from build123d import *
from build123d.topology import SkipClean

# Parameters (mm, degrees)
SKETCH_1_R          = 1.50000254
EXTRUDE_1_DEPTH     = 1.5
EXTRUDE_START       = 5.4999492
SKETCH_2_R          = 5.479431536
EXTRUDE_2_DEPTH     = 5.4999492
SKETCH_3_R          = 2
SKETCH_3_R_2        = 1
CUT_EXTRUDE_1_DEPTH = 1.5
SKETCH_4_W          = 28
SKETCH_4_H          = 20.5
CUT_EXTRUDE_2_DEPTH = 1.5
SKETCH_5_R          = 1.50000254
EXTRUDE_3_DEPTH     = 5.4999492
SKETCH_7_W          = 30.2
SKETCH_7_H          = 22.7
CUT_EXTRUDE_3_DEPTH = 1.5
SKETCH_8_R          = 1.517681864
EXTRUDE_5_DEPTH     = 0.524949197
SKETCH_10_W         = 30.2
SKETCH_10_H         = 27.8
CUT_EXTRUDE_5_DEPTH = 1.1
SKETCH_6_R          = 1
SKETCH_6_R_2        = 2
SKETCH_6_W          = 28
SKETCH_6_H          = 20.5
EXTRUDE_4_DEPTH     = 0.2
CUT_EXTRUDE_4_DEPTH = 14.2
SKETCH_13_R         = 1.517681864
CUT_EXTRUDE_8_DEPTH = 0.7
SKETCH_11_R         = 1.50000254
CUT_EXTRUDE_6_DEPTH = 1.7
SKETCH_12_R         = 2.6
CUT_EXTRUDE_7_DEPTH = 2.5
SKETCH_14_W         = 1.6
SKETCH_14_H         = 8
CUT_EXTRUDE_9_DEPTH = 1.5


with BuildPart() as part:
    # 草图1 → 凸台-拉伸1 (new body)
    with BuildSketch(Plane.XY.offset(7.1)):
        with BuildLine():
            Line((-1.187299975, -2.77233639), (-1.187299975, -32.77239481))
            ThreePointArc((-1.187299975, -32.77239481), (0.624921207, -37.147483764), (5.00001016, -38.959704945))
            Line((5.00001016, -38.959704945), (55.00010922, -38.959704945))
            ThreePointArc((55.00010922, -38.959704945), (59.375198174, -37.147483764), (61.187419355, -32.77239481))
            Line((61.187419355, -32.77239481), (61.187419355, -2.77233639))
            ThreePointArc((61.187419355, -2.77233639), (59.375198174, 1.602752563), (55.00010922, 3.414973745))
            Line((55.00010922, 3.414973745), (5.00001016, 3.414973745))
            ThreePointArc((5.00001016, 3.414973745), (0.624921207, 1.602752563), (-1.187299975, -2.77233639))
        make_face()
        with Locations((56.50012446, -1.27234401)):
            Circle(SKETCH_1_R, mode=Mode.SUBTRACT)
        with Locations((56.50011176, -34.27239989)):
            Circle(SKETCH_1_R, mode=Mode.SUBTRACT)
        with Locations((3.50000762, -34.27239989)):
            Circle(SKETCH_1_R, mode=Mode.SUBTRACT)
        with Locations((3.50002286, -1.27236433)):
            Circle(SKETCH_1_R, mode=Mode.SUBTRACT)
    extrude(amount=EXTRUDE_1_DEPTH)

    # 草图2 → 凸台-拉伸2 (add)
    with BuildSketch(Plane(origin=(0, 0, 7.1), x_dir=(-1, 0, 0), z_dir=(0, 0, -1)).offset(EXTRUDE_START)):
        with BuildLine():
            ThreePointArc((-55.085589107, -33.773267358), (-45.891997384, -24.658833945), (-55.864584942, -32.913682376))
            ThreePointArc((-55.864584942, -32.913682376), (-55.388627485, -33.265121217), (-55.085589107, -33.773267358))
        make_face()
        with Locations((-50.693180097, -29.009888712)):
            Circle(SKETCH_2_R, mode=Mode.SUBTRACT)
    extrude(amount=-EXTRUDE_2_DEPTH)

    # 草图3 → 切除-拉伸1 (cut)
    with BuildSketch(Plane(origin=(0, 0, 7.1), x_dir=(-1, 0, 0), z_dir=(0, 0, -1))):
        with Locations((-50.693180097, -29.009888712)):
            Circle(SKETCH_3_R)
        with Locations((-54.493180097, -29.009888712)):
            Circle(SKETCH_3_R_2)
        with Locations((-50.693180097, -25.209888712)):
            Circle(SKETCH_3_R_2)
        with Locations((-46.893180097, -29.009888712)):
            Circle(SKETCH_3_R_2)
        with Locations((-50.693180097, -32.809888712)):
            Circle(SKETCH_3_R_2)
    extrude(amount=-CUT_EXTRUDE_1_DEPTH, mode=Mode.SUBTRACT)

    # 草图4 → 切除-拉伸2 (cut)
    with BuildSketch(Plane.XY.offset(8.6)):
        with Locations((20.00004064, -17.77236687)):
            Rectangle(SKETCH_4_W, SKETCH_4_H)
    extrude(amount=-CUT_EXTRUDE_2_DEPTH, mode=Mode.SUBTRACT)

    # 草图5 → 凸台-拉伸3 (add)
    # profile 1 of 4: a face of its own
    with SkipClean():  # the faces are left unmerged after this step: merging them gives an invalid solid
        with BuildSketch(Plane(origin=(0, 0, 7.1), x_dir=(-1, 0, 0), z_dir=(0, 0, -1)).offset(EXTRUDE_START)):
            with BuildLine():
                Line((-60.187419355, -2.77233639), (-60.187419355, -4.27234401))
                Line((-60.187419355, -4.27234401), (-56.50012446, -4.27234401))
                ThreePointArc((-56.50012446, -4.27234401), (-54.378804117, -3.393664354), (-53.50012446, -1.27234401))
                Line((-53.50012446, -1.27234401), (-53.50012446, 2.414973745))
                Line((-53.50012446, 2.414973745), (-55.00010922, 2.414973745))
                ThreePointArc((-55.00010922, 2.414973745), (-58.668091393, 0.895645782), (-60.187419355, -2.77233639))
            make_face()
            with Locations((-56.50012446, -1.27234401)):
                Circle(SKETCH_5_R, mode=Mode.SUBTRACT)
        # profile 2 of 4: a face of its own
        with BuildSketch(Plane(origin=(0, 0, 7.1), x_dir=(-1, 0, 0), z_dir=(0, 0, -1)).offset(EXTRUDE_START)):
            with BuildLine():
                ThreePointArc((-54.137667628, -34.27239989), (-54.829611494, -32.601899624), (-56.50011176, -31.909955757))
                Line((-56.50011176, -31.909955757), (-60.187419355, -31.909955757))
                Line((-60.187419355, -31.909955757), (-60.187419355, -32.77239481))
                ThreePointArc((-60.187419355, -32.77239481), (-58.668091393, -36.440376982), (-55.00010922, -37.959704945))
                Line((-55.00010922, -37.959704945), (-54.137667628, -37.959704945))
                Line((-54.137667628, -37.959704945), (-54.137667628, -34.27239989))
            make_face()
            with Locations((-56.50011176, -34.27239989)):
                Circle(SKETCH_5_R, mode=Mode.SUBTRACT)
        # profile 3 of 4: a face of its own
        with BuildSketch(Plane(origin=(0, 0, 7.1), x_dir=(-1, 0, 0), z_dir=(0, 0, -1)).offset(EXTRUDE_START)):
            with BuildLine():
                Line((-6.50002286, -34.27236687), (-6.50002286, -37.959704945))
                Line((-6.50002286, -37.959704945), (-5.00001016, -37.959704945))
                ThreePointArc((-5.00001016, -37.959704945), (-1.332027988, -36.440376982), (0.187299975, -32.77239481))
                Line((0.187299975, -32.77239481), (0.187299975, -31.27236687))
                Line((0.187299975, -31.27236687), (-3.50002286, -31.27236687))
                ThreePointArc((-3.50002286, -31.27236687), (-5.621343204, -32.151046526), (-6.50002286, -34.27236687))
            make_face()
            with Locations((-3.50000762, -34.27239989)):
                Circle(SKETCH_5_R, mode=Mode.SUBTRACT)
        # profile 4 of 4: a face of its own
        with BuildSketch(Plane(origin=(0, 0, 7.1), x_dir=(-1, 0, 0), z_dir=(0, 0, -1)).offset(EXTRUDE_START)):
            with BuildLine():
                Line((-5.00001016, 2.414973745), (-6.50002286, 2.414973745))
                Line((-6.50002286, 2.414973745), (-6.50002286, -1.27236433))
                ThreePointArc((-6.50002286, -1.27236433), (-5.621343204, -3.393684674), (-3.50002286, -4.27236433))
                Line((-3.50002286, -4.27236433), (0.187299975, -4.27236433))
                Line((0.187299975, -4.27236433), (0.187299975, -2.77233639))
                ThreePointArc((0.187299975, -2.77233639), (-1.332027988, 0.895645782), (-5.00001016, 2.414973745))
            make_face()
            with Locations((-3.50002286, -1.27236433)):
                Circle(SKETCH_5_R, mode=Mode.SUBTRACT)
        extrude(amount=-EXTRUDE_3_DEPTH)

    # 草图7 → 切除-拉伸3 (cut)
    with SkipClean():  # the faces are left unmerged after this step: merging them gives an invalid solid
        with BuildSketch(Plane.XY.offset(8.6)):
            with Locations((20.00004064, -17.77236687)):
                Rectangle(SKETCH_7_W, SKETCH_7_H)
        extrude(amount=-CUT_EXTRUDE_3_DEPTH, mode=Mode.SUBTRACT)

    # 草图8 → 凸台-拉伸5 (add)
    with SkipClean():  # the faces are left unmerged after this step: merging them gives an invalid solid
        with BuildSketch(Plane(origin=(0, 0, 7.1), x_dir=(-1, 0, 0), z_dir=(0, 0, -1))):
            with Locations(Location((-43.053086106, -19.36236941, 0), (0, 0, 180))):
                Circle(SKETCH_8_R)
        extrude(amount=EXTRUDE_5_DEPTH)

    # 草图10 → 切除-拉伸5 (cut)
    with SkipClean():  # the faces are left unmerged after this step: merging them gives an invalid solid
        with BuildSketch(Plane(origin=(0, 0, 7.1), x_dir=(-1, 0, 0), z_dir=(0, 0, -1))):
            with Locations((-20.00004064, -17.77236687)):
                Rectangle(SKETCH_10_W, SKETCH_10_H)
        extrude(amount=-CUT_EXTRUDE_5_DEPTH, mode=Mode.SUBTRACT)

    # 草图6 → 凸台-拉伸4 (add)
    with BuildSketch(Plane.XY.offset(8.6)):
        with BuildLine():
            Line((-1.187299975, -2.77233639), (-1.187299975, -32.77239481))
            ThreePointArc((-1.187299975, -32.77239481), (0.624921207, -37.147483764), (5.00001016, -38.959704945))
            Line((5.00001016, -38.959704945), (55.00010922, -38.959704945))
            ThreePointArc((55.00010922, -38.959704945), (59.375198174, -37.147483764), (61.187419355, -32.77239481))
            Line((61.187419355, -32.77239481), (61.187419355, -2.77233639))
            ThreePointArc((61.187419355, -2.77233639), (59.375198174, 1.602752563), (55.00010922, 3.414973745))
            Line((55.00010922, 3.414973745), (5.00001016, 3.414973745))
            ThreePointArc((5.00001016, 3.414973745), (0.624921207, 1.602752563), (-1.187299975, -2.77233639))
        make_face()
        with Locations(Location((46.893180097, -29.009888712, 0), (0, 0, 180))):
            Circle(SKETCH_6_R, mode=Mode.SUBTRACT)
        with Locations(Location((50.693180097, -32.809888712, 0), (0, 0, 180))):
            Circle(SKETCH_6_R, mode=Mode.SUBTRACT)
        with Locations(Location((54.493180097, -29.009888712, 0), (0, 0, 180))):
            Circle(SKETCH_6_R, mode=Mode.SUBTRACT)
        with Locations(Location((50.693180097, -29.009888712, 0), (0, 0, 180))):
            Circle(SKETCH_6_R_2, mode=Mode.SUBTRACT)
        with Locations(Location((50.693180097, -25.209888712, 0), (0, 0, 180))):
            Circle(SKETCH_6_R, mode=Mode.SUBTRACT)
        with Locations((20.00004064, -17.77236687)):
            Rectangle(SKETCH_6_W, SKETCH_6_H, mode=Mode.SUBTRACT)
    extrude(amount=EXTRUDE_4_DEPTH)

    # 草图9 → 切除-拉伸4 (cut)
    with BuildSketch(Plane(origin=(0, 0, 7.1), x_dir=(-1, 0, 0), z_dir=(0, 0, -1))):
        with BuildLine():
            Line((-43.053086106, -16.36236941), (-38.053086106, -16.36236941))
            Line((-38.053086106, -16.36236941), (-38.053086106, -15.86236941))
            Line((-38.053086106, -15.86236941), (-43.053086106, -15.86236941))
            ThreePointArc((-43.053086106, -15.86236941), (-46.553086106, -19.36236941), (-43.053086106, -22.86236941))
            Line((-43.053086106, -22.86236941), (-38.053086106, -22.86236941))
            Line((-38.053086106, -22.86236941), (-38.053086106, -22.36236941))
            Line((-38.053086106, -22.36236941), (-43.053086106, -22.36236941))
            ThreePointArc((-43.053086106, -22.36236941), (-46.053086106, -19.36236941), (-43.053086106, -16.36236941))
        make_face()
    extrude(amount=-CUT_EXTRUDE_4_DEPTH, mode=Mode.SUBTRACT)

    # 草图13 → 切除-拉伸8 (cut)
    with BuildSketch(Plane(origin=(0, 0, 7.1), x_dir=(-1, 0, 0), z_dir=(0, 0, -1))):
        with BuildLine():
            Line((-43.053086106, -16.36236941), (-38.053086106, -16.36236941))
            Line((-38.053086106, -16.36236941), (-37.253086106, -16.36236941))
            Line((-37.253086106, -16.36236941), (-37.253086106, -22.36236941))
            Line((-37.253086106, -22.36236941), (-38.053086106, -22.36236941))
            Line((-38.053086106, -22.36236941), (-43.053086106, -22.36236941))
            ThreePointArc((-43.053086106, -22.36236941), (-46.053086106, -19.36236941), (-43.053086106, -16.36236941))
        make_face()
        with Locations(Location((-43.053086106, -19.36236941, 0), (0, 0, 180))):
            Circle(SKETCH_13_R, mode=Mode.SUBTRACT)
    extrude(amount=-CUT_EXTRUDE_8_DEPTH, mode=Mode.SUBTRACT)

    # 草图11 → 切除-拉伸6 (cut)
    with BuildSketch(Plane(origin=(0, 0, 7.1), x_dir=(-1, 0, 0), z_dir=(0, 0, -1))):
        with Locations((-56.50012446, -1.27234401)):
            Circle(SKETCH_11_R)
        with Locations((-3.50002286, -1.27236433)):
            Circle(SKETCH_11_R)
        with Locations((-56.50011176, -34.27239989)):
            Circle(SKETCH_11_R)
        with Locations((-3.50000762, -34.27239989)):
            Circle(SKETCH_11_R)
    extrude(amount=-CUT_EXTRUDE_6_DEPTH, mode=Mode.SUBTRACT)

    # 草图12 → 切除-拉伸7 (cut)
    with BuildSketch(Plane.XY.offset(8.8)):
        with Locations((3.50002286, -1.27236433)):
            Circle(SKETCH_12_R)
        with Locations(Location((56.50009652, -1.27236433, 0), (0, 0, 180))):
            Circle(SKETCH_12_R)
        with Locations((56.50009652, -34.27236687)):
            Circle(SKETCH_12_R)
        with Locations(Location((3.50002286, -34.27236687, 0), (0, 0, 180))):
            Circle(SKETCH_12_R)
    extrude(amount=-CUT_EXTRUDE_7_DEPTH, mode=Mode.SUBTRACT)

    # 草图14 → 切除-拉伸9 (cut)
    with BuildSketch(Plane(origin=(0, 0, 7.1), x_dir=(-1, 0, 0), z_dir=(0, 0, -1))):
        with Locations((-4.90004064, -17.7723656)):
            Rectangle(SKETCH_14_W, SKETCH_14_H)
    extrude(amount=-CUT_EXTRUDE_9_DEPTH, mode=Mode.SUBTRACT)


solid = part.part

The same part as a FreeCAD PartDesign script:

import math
import FreeCAD as App
import Part
import Sketcher
Q = App.Units.Quantity

doc = App.newDocument("Part")
body = doc.addObject("PartDesign::Body", "Body")

sketch1 = body.newObject("Sketcher::SketchObject", "Sketch")
sketch1.AttachmentSupport = (doc.getObject("XY_Plane"), [""])
sketch1.MapMode = "FlatFace"
sketch1.AttachmentOffset = App.Placement(App.Vector(0, 0, 7.1), App.Rotation())
sketch1.addGeometry([
    Part.LineSegment(App.Vector(-1.2, -2.8, 0), App.Vector(-1.2, -32.8, 0)),
    Part.ArcOfCircle(Part.Circle(App.Vector(5, -32.8, 0), App.Vector(0, 0, 1), 6.2), math.radians(-180), math.radians(-90)),
    Part.LineSegment(App.Vector(5, -39, 0), App.Vector(55, -39, 0)),
    Part.ArcOfCircle(Part.Circle(App.Vector(55, -32.8, 0), App.Vector(0, 0, 1), 6.2), math.radians(-90), math.radians(0)),
    Part.LineSegment(App.Vector(61.2, -32.8, 0), App.Vector(61.2, -2.8, 0)),
    Part.ArcOfCircle(Part.Circle(App.Vector(55, -2.8, 0), App.Vector(0, 0, 1), 6.2), math.radians(0), math.radians(90)),
    Part.LineSegment(App.Vector(55, 3.4, 0), App.Vector(5, 3.4, 0)),
    Part.ArcOfCircle(Part.Circle(App.Vector(5, -2.8, 0), App.Vector(0, 0, 1), 6.2), math.radians(90), math.radians(180)),
    Part.Circle(App.Vector(3.5, -34.3, 0), App.Vector(0, 0, 1), 1.5),
    Part.Circle(App.Vector(56.5, -34.3, 0), App.Vector(0, 0, 1), 1.5),
    Part.Circle(App.Vector(3.5, -1.3, 0), App.Vector(0, 0, 1), 1.5),
    Part.Circle(App.Vector(56.5, -1.3, 0), App.Vector(0, 0, 1), 1.5),
], False)
sketch1.addConstraint([
    Sketcher.Constraint("Tangent", 0, 2, 1, 1),
    Sketcher.Constraint("Tangent", 1, 2, 2, 1),
    Sketcher.Constraint("Tangent", 2, 2, 3, 1),
    Sketcher.Constraint("Tangent", 3, 2, 4, 1),
    Sketcher.Constraint("Tangent", 4, 2, 5, 1),
    Sketcher.Constraint("Tangent", 5, 2, 6, 1),
    Sketcher.Constraint("Tangent", 6, 2, 7, 1),
    Sketcher.Constraint("Tangent", 7, 2, 0, 1),
    Sketcher.Constraint("Vertical", 0),
    Sketcher.Constraint("Horizontal", 2),
    Sketcher.Constraint("Vertical", 4),
    Sketcher.Constraint("Horizontal", 6),
    Sketcher.Constraint("Equal", 1, 3),
    Sketcher.Constraint("Equal", 3, 5),
    Sketcher.Constraint("Equal", 5, 7),
    Sketcher.Constraint("Equal", 8, 9),
    Sketcher.Constraint("Equal", 9, 10),
    Sketcher.Constraint("Equal", 10, 11),
    Sketcher.Constraint("Horizontal", 8, 3, 9, 3),
    Sketcher.Constraint("Radius", 1, Q("6.18731 mm")),
    Sketcher.Constraint("Diameter", 8, Q("3.000005 mm")),
    Sketcher.Constraint("DistanceX", 2, 1, 2, 2, Q("50.000099 mm")),
    Sketcher.Constraint("DistanceY", 0, 2, 0, 1, Q("30.000058 mm")),
    Sketcher.Constraint("DistanceY", 8, 3, -1, 1, Q("34.2724 mm")),
    Sketcher.Constraint("DistanceX", 0, 2, -1, 1, Q("1.1873 mm")),
    Sketcher.Constraint("DistanceX", 8, 3, 3, 3, Q("51.500102 mm")),
    Sketcher.Constraint("DistanceX", 1, 3, 9, 3, Q("51.500102 mm")),
    Sketcher.Constraint("DistanceX", 10, 3, 11, 3, Q("53.000102 mm")),
    Sketcher.Constraint("DistanceY", 1, 3, 10, 3, Q("31.50003 mm")),
    Sketcher.Constraint("DistanceY", 3, 3, 11, 3, Q("31.500051 mm")),
    Sketcher.Constraint("DistanceY", 1, 3, -1, 1, Q("32.772395 mm")),
    Sketcher.Constraint("DistanceX", -1, 1, 10, 3, Q("3.500023 mm")),
])
pad1 = body.newObject("PartDesign::Pad", "Pad")
pad1.Profile = sketch1
pad1.Length = 1.5

sketch2 = body.newObject("Sketcher::SketchObject", "Sketch001")
sketch2.AttachmentSupport = (doc.getObject("XY_Plane"), [""])
sketch2.MapMode = "FlatFace"
sketch2.AttachmentOffset = App.Placement(App.Vector(0, 0, 1.600051), App.Rotation())
sketch2.addGeometry([
    Part.ArcOfCircle(Part.Circle(App.Vector(50.7, -29, 0), App.Vector(0, 0, 1), 6.5), math.radians(-37), math.radians(313)),
    Part.ArcOfCircle(Part.Circle(App.Vector(56.5, -34.3, 0), App.Vector(0, 0, 1), 1.5), math.radians(115), math.radians(161)),
    Part.Circle(App.Vector(50.7, -29, 0), App.Vector(0, 0, 1), 5.5),
], False)
sketch2.addConstraint([
    Sketcher.Constraint("Coincident", 0, 1, 1, 1),
    Sketcher.Constraint("Coincident", 1, 2, 0, 2),
    Sketcher.Constraint("Coincident", 2, 3, 0, 3),
    Sketcher.Constraint("Radius", 0, Q("6.479432 mm")),
    Sketcher.Constraint("Diameter", 2, Q("10.958863 mm")),
    Sketcher.Constraint("Radius", 1, Q("1.500003 mm")),
    Sketcher.Constraint("DistanceY", 1, 3, -1, 1, Q("34.2724 mm")),
    Sketcher.Constraint("DistanceX", -1, 1, 0, 3, Q("50.69318 mm")),
    Sketcher.Constraint("DistanceY", 0, 3, -1, 1, Q("29.009889 mm")),
    Sketcher.Constraint("DistanceX", -1, 1, 1, 3, Q("56.500112 mm")),
])
pad2 = body.newObject("PartDesign::Pad", "Pad001")
pad2.Profile = sketch2
pad2.Length = 5.499949

sketch3 = body.newObject("Sketcher::SketchObject", "Sketch002")
sketch3.AttachmentSupport = (doc.getObject("XY_Plane"), [""])
sketch3.MapMode = "FlatFace"
sketch3.AttachmentOffset = App.Placement(App.Vector(0, 0, 7.1), App.Rotation())
sketch3.addGeometry([
    Part.Circle(App.Vector(50.7, -29, 0), App.Vector(0, 0, 1), 2),
    Part.Circle(App.Vector(54.5, -29, 0), App.Vector(0, 0, 1), 1),
    Part.Circle(App.Vector(50.7, -25.2, 0), App.Vector(0, 0, 1), 1),
    Part.Circle(App.Vector(46.9, -29, 0), App.Vector(0, 0, 1), 1),
    Part.Circle(App.Vector(50.7, -32.8, 0), App.Vector(0, 0, 1), 1),
], False)
sketch3.addConstraint([
    Sketcher.Constraint("Equal", 1, 2),
    Sketcher.Constraint("Equal", 2, 3),
    Sketcher.Constraint("Equal", 3, 4),
    Sketcher.Constraint("Horizontal", 0, 3, 1, 3),
    Sketcher.Constraint("Horizontal", 1, 3, 3, 3),
    Sketcher.Constraint("Vertical", 0, 3, 2, 3),
    Sketcher.Constraint("Vertical", 2, 3, 4, 3),
    Sketcher.Constraint("Diameter", 0, Q("4 mm")),
    Sketcher.Constraint("Diameter", 1, Q("2 mm")),
    Sketcher.Constraint("DistanceX", 0, 3, 1, 3, Q("3.8 mm")),
    Sketcher.Constraint("DistanceY", 0, 3, 2, 3, Q("3.8 mm")),
    Sketcher.Constraint("DistanceX", 3, 3, 0, 3, Q("3.8 mm")),
    Sketcher.Constraint("DistanceY", 4, 3, 0, 3, Q("3.8 mm")),
    Sketcher.Constraint("DistanceX", -1, 1, 0, 3, Q("50.69318 mm")),
    Sketcher.Constraint("DistanceY", 0, 3, -1, 1, Q("29.009889 mm")),
])
pocket1 = body.newObject("PartDesign::Pocket", "Pocket")
pocket1.Profile = sketch3
pocket1.Length = 1.5
pocket1.Reversed = True

sketch4 = body.newObject("Sketcher::SketchObject", "Sketch003")
sketch4.AttachmentSupport = (doc.getObject("XY_Plane"), [""])
sketch4.MapMode = "FlatFace"
sketch4.AttachmentOffset = App.Placement(App.Vector(0, 0, 8.6), App.Rotation())
sketch4.addGeometry([
    Part.LineSegment(App.Vector(6, -8, 0), App.Vector(6, -28, 0)),
    Part.LineSegment(App.Vector(6, -28, 0), App.Vector(34, -28, 0)),
    Part.LineSegment(App.Vector(34, -28, 0), App.Vector(34, -8, 0)),
    Part.LineSegment(App.Vector(34, -8, 0), App.Vector(6, -8, 0)),
], False)
sketch4.addConstraint([
    Sketcher.Constraint("Coincident", 0, 2, 1, 1),
    Sketcher.Constraint("Coincident", 1, 2, 2, 1),
    Sketcher.Constraint("Coincident", 2, 2, 3, 1),
    Sketcher.Constraint("Coincident", 3, 2, 0, 1),
    Sketcher.Constraint("Vertical", 0),
    Sketcher.Constraint("Horizontal", 1),
    Sketcher.Constraint("Vertical", 2),
    Sketcher.Constraint("Horizontal", 3),
    Sketcher.Constraint("DistanceX", 1, 1, 1, 2, Q("28 mm")),
    Sketcher.Constraint("DistanceY", 0, 2, 0, 1, Q("20.5 mm")),
    Sketcher.Constraint("DistanceX", -1, 1, 0, 2, Q("6.000041 mm")),
    Sketcher.Constraint("DistanceY", 0, 2, -1, 1, Q("28.022367 mm")),
])
pocket2 = body.newObject("PartDesign::Pocket", "Pocket001")
pocket2.Profile = sketch4
pocket2.Length = 1.5

sketch5 = body.newObject("Sketcher::SketchObject", "Sketch004")
sketch5.AttachmentSupport = (doc.getObject("XY_Plane"), [""])
sketch5.MapMode = "FlatFace"
sketch5.AttachmentOffset = App.Placement(App.Vector(0, 0, 1.600051), App.Rotation())
sketch5.addGeometry([
    Part.LineSegment(App.Vector(60.2, -2.8, 0), App.Vector(60.2, -4.3, 0)),
    Part.LineSegment(App.Vector(60.2, -4.3, 0), App.Vector(56.5, -4.3, 0)),
    Part.ArcOfCircle(Part.Circle(App.Vector(56.5, -1.3, 0), App.Vector(0, 0, 1), 3), math.radians(180), math.radians(270)),
    Part.LineSegment(App.Vector(53.5, -1.3, 0), App.Vector(53.5, 2.4, 0)),
    Part.LineSegment(App.Vector(53.5, 2.4, 0), App.Vector(55, 2.4, 0)),
    Part.ArcOfCircle(Part.Circle(App.Vector(55, -2.8, 0), App.Vector(0, 0, 1), 5.2), math.radians(0), math.radians(90)),
    Part.Circle(App.Vector(56.5, -1.3, 0), App.Vector(0, 0, 1), 1.5),
    Part.ArcOfCircle(Part.Circle(App.Vector(56.5, -34.3, 0), App.Vector(0, 0, 1), 2.4), math.radians(90), math.radians(180)),
    Part.LineSegment(App.Vector(56.5, -31.9, 0), App.Vector(60.2, -31.9, 0)),
    Part.LineSegment(App.Vector(60.2, -31.9, 0), App.Vector(60.2, -32.8, 0)),
    Part.ArcOfCircle(Part.Circle(App.Vector(55, -32.8, 0), App.Vector(0, 0, 1), 5.2), math.radians(-90), math.radians(0)),
    Part.LineSegment(App.Vector(55, -38, 0), App.Vector(54.1, -38, 0)),
    Part.LineSegment(App.Vector(54.1, -38, 0), App.Vector(54.1, -34.3, 0)),
    Part.Circle(App.Vector(56.5, -34.3, 0), App.Vector(0, 0, 1), 1.5),
    Part.LineSegment(App.Vector(6.5, -34.3, 0), App.Vector(6.5, -38, 0)),
    Part.LineSegment(App.Vector(6.5, -38, 0), App.Vector(5, -38, 0)),
    Part.ArcOfCircle(Part.Circle(App.Vector(5, -32.8, 0), App.Vector(0, 0, 1), 5.2), math.radians(-180), math.radians(-90)),
    Part.LineSegment(App.Vector(-0.2, -32.8, 0), App.Vector(-0.2, -31.3, 0)),
    Part.LineSegment(App.Vector(-0.2, -31.3, 0), App.Vector(3.5, -31.3, 0)),
    Part.ArcOfCircle(Part.Circle(App.Vector(3.5, -34.3, 0), App.Vector(0, 0, 1), 3), math.radians(0), math.radians(90)),
    Part.Circle(App.Vector(3.5, -34.3, 0), App.Vector(0, 0, 1), 1.5),
    Part.LineSegment(App.Vector(5, 2.4, 0), App.Vector(6.5, 2.4, 0)),
    Part.LineSegment(App.Vector(6.5, 2.4, 0), App.Vector(6.5, -1.3, 0)),
    Part.ArcOfCircle(Part.Circle(App.Vector(3.5, -1.3, 0), App.Vector(0, 0, 1), 3), math.radians(-90), math.radians(0)),
    Part.LineSegment(App.Vector(3.5, -4.3, 0), App.Vector(-0.2, -4.3, 0)),
    Part.LineSegment(App.Vector(-0.2, -4.3, 0), App.Vector(-0.2, -2.8, 0)),
    Part.ArcOfCircle(Part.Circle(App.Vector(5, -2.8, 0), App.Vector(0, 0, 1), 5.2), math.radians(90), math.radians(180)),
    Part.Circle(App.Vector(3.5, -1.3, 0), App.Vector(0, 0, 1), 1.5),
], False)
sketch5.addConstraint([
    Sketcher.Constraint("Coincident", 0, 2, 1, 1),
    Sketcher.Constraint("Tangent", 1, 2, 2, 2),
    Sketcher.Constraint("Tangent", 2, 1, 3, 1),
    Sketcher.Constraint("Coincident", 3, 2, 4, 1),
    Sketcher.Constraint("Tangent", 4, 2, 5, 2),
    Sketcher.Constraint("Tangent", 5, 1, 0, 1),
    Sketcher.Constraint("Tangent", 7, 1, 8, 1),
    Sketcher.Constraint("Coincident", 8, 2, 9, 1),
    Sketcher.Constraint("Tangent", 9, 2, 10, 2),
    Sketcher.Constraint("Tangent", 10, 1, 11, 1),
    Sketcher.Constraint("Coincident", 11, 2, 12, 1),
    Sketcher.Constraint("Tangent", 12, 2, 7, 2),
    Sketcher.Constraint("Coincident", 14, 2, 15, 1),
    Sketcher.Constraint("Tangent", 15, 2, 16, 2),
    Sketcher.Constraint("Tangent", 16, 1, 17, 1),
    Sketcher.Constraint("Coincident", 17, 2, 18, 1),
    Sketcher.Constraint("Tangent", 18, 2, 19, 2),
    Sketcher.Constraint("Tangent", 19, 1, 14, 1),
    Sketcher.Constraint("Coincident", 21, 2, 22, 1),
    Sketcher.Constraint("Tangent", 22, 2, 23, 2),
    Sketcher.Constraint("Tangent", 23, 1, 24, 1),
    Sketcher.Constraint("Coincident", 24, 2, 25, 1),
    Sketcher.Constraint("Tangent", 25, 2, 26, 2),
    Sketcher.Constraint("Tangent", 26, 1, 21, 1),
    Sketcher.Constraint("Vertical", 0),
    Sketcher.Constraint("Horizontal", 1),
    Sketcher.Constraint("Vertical", 3),
    Sketcher.Constraint("Horizontal", 4),
    Sketcher.Constraint("Horizontal", 8),
    Sketcher.Constraint("Vertical", 9),
    Sketcher.Constraint("Horizontal", 11),
    Sketcher.Constraint("Vertical", 12),
    Sketcher.Constraint("Vertical", 14),
    Sketcher.Constraint("Horizontal", 15),
    Sketcher.Constraint("Vertical", 17),
    Sketcher.Constraint("Horizontal", 18),
    Sketcher.Constraint("Horizontal", 21),
    Sketcher.Constraint("Vertical", 22),
    Sketcher.Constraint("Horizontal", 24),
    Sketcher.Constraint("Vertical", 25),
    Sketcher.Constraint("Coincident", 6, 3, 2, 3),
    Sketcher.Constraint("Coincident", 13, 3, 7, 3),
    Sketcher.Constraint("Coincident", 27, 3, 23, 3),
    Sketcher.Constraint("Equal", 5, 10),
    Sketcher.Constraint("Equal", 6, 13),
    Sketcher.Constraint("Equal", 10, 16),
    Sketcher.Constraint("Equal", 2, 19),
    Sketcher.Constraint("Equal", 13, 20),
    Sketcher.Constraint("Equal", 19, 23),
    Sketcher.Constraint("Equal", 16, 26),
    Sketcher.Constraint("Equal", 20, 27),
    Sketcher.Constraint("Horizontal", 10, 3, 16, 3),
    Sketcher.Constraint("Horizontal", 13, 3, 20, 3),
    Sketcher.Constraint("Horizontal", 5, 3, 26, 3),
    Sketcher.Constraint("Vertical", 5, 3, 10, 3),
    Sketcher.Constraint("Vertical", 19, 3, 23, 3),
    Sketcher.Constraint("Vertical", 16, 3, 26, 3),
    Sketcher.Constraint("Equal", 14, 22),
    Sketcher.Constraint("Radius", 2, Q("3 mm")),
    Sketcher.Constraint("Radius", 5, Q("5.18731 mm")),
    Sketcher.Constraint("Diameter", 6, Q("3.000005 mm")),
    Sketcher.Constraint("Radius", 7, Q("2.362444 mm")),
    Sketcher.Constraint("DistanceX", 11, 2, 11, 1, Q("0.862442 mm")),
    Sketcher.Constraint("DistanceY", 9, 2, 9, 1, Q("0.862439 mm")),
    Sketcher.Constraint("DistanceY", 14, 2, 14, 1, Q("3.687338 mm")),
    Sketcher.Constraint("DistanceY", 7, 3, -1, 1, Q("34.2724 mm")),
    Sketcher.Constraint("DistanceX", 16, 1, -1, 1, Q("0.1873 mm")),
    Sketcher.Constraint("DistanceX", 16, 3, 10, 3, Q("50.000099 mm")),
    Sketcher.Constraint("DistanceX", 20, 3, 10, 3, Q("51.500102 mm")),
    Sketcher.Constraint("DistanceX", 23, 3, 2, 3, Q("53.000102 mm")),
    Sketcher.Constraint("DistanceX", 1, 2, 1, 1, Q("3.687295 mm")),
    Sketcher.Constraint("DistanceY", 0, 2, 0, 1, Q("1.500008 mm")),
    Sketcher.Constraint("DistanceY", 10, 3, 5, 3, Q("30.000058 mm")),
])
pad3 = body.newObject("PartDesign::Pad", "Pad002")
pad3.Profile = sketch5
pad3.Length = 5.499949

sketch6 = body.newObject("Sketcher::SketchObject", "Sketch005")
sketch6.AttachmentSupport = (doc.getObject("XY_Plane"), [""])
sketch6.MapMode = "FlatFace"
sketch6.AttachmentOffset = App.Placement(App.Vector(0, 0, 8.6), App.Rotation())
sketch6.addGeometry([
    Part.LineSegment(App.Vector(5, -6, 0), App.Vector(5, -29, 0)),
    Part.LineSegment(App.Vector(5, -29, 0), App.Vector(35, -29, 0)),
    Part.LineSegment(App.Vector(35, -29, 0), App.Vector(35, -6, 0)),
    Part.LineSegment(App.Vector(35, -6, 0), App.Vector(5, -6, 0)),
], False)
sketch6.addConstraint([
    Sketcher.Constraint("Coincident", 0, 2, 1, 1),
    Sketcher.Constraint("Coincident", 1, 2, 2, 1),
    Sketcher.Constraint("Coincident", 2, 2, 3, 1),
    Sketcher.Constraint("Coincident", 3, 2, 0, 1),
    Sketcher.Constraint("Vertical", 0),
    Sketcher.Constraint("Horizontal", 1),
    Sketcher.Constraint("Vertical", 2),
    Sketcher.Constraint("Horizontal", 3),
    Sketcher.Constraint("DistanceX", 1, 1, 1, 2, Q("30.2 mm")),
    Sketcher.Constraint("DistanceY", 0, 2, 0, 1, Q("22.7 mm")),
    Sketcher.Constraint("DistanceX", -1, 1, 0, 2, Q("4.900041 mm")),
    Sketcher.Constraint("DistanceY", 0, 2, -1, 1, Q("29.122367 mm")),
])
pocket3 = body.newObject("PartDesign::Pocket", "Pocket002")
pocket3.Profile = sketch6
pocket3.Length = 1.5

sketch7 = body.newObject("Sketcher::SketchObject", "Sketch006")
sketch7.AttachmentSupport = (doc.getObject("XY_Plane"), [""])
sketch7.MapMode = "FlatFace"
sketch7.AttachmentOffset = App.Placement(App.Vector(0, 0, 7.1), App.Rotation())
sketch7.addGeometry(Part.Circle(App.Vector(43.1, -19.4, 0), App.Vector(0, 0, 1), 1.5), False)
sketch7.addConstraint([
    Sketcher.Constraint("Diameter", 0, Q("3.035364 mm")),
    Sketcher.Constraint("DistanceY", 0, 3, -1, 1, Q("19.362369 mm")),
    Sketcher.Constraint("DistanceX", -1, 1, 0, 3, Q("43.053086 mm")),
])
pad4 = body.newObject("PartDesign::Pad", "Pad003")
pad4.Profile = sketch7
pad4.Length = 0.524949
pad4.Reversed = True

sketch8 = body.newObject("Sketcher::SketchObject", "Sketch007")
sketch8.AttachmentSupport = (doc.getObject("XY_Plane"), [""])
sketch8.MapMode = "FlatFace"
sketch8.AttachmentOffset = App.Placement(App.Vector(0, 0, 7.1), App.Rotation())
sketch8.addGeometry([
    Part.LineSegment(App.Vector(35, -4, 0), App.Vector(35, -32, 0)),
    Part.LineSegment(App.Vector(35, -32, 0), App.Vector(5, -32, 0)),
    Part.LineSegment(App.Vector(5, -32, 0), App.Vector(5, -4, 0)),
    Part.LineSegment(App.Vector(5, -4, 0), App.Vector(35, -4, 0)),
], False)
sketch8.addConstraint([
    Sketcher.Constraint("Coincident", 0, 2, 1, 1),
    Sketcher.Constraint("Coincident", 1, 2, 2, 1),
    Sketcher.Constraint("Coincident", 2, 2, 3, 1),
    Sketcher.Constraint("Coincident", 3, 2, 0, 1),
    Sketcher.Constraint("Vertical", 0),
    Sketcher.Constraint("Horizontal", 1),
    Sketcher.Constraint("Vertical", 2),
    Sketcher.Constraint("Horizontal", 3),
    Sketcher.Constraint("DistanceX", 1, 2, 1, 1, Q("30.2 mm")),
    Sketcher.Constraint("DistanceY", 0, 2, 0, 1, Q("27.8 mm")),
    Sketcher.Constraint("DistanceX", -1, 1, 0, 2, Q("35.100041 mm")),
    Sketcher.Constraint("DistanceY", 0, 2, -1, 1, Q("31.672367 mm")),
])
pocket4 = body.newObject("PartDesign::Pocket", "Pocket003")
pocket4.Profile = sketch8
pocket4.Length = 1.1
pocket4.Reversed = True

sketch9 = body.newObject("Sketcher::SketchObject", "Sketch008")
sketch9.AttachmentSupport = (doc.getObject("XY_Plane"), [""])
sketch9.MapMode = "FlatFace"
sketch9.AttachmentOffset = App.Placement(App.Vector(0, 0, 8.6), App.Rotation())
sketch9.addGeometry([
    Part.LineSegment(App.Vector(-1.2, -2.8, 0), App.Vector(-1.2, -32.8, 0)),
    Part.ArcOfCircle(Part.Circle(App.Vector(5, -32.8, 0), App.Vector(0, 0, 1), 6.2), math.radians(-180), math.radians(-90)),
    Part.LineSegment(App.Vector(5, -39, 0), App.Vector(55, -39, 0)),
    Part.ArcOfCircle(Part.Circle(App.Vector(55, -32.8, 0), App.Vector(0, 0, 1), 6.2), math.radians(-90), math.radians(0)),
    Part.LineSegment(App.Vector(61.2, -32.8, 0), App.Vector(61.2, -2.8, 0)),
    Part.ArcOfCircle(Part.Circle(App.Vector(55, -2.8, 0), App.Vector(0, 0, 1), 6.2), math.radians(0), math.radians(90)),
    Part.LineSegment(App.Vector(55, 3.4, 0), App.Vector(5, 3.4, 0)),
    Part.ArcOfCircle(Part.Circle(App.Vector(5, -2.8, 0), App.Vector(0, 0, 1), 6.2), math.radians(90), math.radians(180)),
    Part.Circle(App.Vector(50.7, -32.8, 0), App.Vector(0, 0, 1), 1),
    Part.Circle(App.Vector(46.9, -29, 0), App.Vector(0, 0, 1), 1),
    Part.Circle(App.Vector(50.7, -29, 0), App.Vector(0, 0, 1), 2),
    Part.Circle(App.Vector(54.5, -29, 0), App.Vector(0, 0, 1), 1),
    Part.Circle(App.Vector(50.7, -25.2, 0), App.Vector(0, 0, 1), 1),
    Part.LineSegment(App.Vector(34, -28, 0), App.Vector(6, -28, 0)),
    Part.LineSegment(App.Vector(6, -28, 0), App.Vector(6, -7.5, 0)),
    Part.LineSegment(App.Vector(6, -7.5, 0), App.Vector(34, -7.5, 0)),
    Part.LineSegment(App.Vector(34, -7.5, 0), App.Vector(34, -28, 0)),
], False)
sketch9.addConstraint([
    Sketcher.Constraint("Tangent", 0, 2, 1, 1),
    Sketcher.Constraint("Tangent", 1, 2, 2, 1),
    Sketcher.Constraint("Tangent", 2, 2, 3, 1),
    Sketcher.Constraint("Tangent", 3, 2, 4, 1),
    Sketcher.Constraint("Tangent", 4, 2, 5, 1),
    Sketcher.Constraint("Tangent", 5, 2, 6, 1),
    Sketcher.Constraint("Tangent", 6, 2, 7, 1),
    Sketcher.Constraint("Tangent", 7, 2, 0, 1),
    Sketcher.Constraint("Coincident", 13, 2, 14, 1),
    Sketcher.Constraint("Coincident", 14, 2, 15, 1),
    Sketcher.Constraint("Coincident", 15, 2, 16, 1),
    Sketcher.Constraint("Coincident", 16, 2, 13, 1),
    Sketcher.Constraint("Vertical", 0),
    Sketcher.Constraint("Horizontal", 2),
    Sketcher.Constraint("Vertical", 4),
    Sketcher.Constraint("Horizontal", 6),
    Sketcher.Constraint("Horizontal", 13),
    Sketcher.Constraint("Vertical", 14),
    Sketcher.Constraint("Horizontal", 15),
    Sketcher.Constraint("Vertical", 16),
    Sketcher.Constraint("Equal", 1, 3),
    Sketcher.Constraint("Equal", 3, 5),
    Sketcher.Constraint("Equal", 5, 7),
    Sketcher.Constraint("Equal", 8, 9),
    Sketcher.Constraint("Equal", 9, 11),
    Sketcher.Constraint("Equal", 11, 12),
    Sketcher.Constraint("Horizontal", 9, 3, 10, 3),
    Sketcher.Constraint("Horizontal", 10, 3, 11, 3),
    Sketcher.Constraint("Vertical", 8, 3, 10, 3),
    Sketcher.Constraint("Vertical", 10, 3, 12, 3),
    Sketcher.Constraint("Diameter", 8, Q("2 mm")),
    Sketcher.Constraint("Diameter", 10, Q("4 mm")),
    Sketcher.Constraint("DistanceX", 13, 2, 13, 1, Q("28 mm")),
    Sketcher.Constraint("DistanceY", 14, 1, 14, 2, Q("20.5 mm")),
    Sketcher.Constraint("DistanceX", 9, 3, 8, 3, Q("3.8 mm")),
    Sketcher.Constraint("DistanceY", 8, 3, 9, 3, Q("3.8 mm")),
    Sketcher.Constraint("DistanceX", 10, 3, 11, 3, Q("3.8 mm")),
    Sketcher.Constraint("DistanceY", 10, 3, 12, 3, Q("3.8 mm")),
    Sketcher.Constraint("Radius", 1, Q("6.18731 mm")),
    Sketcher.Constraint("DistanceX", 2, 1, 2, 2, Q("50.000099 mm")),
    Sketcher.Constraint("DistanceY", 0, 2, 0, 1, Q("30.000058 mm")),
    Sketcher.Constraint("DistanceX", 0, 2, -1, 1, Q("1.1873 mm")),
    Sketcher.Constraint("DistanceX", -1, 1, 8, 3, Q("50.69318 mm")),
    Sketcher.Constraint("DistanceY", 8, 3, -1, 1, Q("32.809889 mm")),
    Sketcher.Constraint("DistanceX", -1, 1, 13, 2, Q("6.000041 mm")),
    Sketcher.Constraint("DistanceY", 1, 2, 13, 2, Q("10.937338 mm")),
    Sketcher.Constraint("DistanceY", 12, 3, 15, 2, Q("17.687522 mm")),
])
pad5 = body.newObject("PartDesign::Pad", "Pad004")
pad5.Profile = sketch9
pad5.Length = 0.2

sketch10 = body.newObject("Sketcher::SketchObject", "Sketch009")
sketch10.AttachmentSupport = (doc.getObject("XY_Plane"), [""])
sketch10.MapMode = "FlatFace"
sketch10.AttachmentOffset = App.Placement(App.Vector(0, 0, 7.1), App.Rotation())
sketch10.addGeometry([
    Part.LineSegment(App.Vector(43.1, -16.4, 0), App.Vector(38.1, -16.4, 0)),
    Part.LineSegment(App.Vector(38.1, -16.4, 0), App.Vector(38.1, -15.9, 0)),
    Part.LineSegment(App.Vector(38.1, -15.9, 0), App.Vector(43.1, -15.9, 0)),
    Part.ArcOfCircle(Part.Circle(App.Vector(43.1, -19.4, 0), App.Vector(0, 0, 1), 3.5), math.radians(-90), math.radians(90)),
    Part.LineSegment(App.Vector(43.1, -22.9, 0), App.Vector(38.1, -22.9, 0)),
    Part.LineSegment(App.Vector(38.1, -22.9, 0), App.Vector(38.1, -22.4, 0)),
    Part.LineSegment(App.Vector(38.1, -22.4, 0), App.Vector(43.1, -22.4, 0)),
    Part.ArcOfCircle(Part.Circle(App.Vector(43.1, -19.4, 0), App.Vector(0, 0, 1), 3), math.radians(-90), math.radians(90)),
], False)
sketch10.addConstraint([
    Sketcher.Constraint("Coincident", 0, 2, 1, 1),
    Sketcher.Constraint("Coincident", 1, 2, 2, 1),
    Sketcher.Constraint("Tangent", 2, 2, 3, 2),
    Sketcher.Constraint("Tangent", 3, 1, 4, 1),
    Sketcher.Constraint("Coincident", 4, 2, 5, 1),
    Sketcher.Constraint("Coincident", 5, 2, 6, 1),
    Sketcher.Constraint("Tangent", 6, 2, 7, 1),
    Sketcher.Constraint("Tangent", 7, 2, 0, 1),
    Sketcher.Constraint("Horizontal", 0),
    Sketcher.Constraint("Vertical", 1),
    Sketcher.Constraint("Horizontal", 2),
    Sketcher.Constraint("Horizontal", 4),
    Sketcher.Constraint("Vertical", 5),
    Sketcher.Constraint("Horizontal", 6),
    Sketcher.Constraint("Coincident", 7, 3, 3, 3),
    Sketcher.Constraint("Vertical", 1, 2, 4, 2),
    Sketcher.Constraint("Radius", 7, Q("3 mm")),
    Sketcher.Constraint("Radius", 3, Q("3.5 mm")),
    Sketcher.Constraint("DistanceX", 0, 2, 0, 1, Q("5 mm")),
    Sketcher.Constraint("DistanceY", 3, 3, -1, 1, Q("19.362369 mm")),
    Sketcher.Constraint("DistanceX", -1, 1, 3, 3, Q("43.053086 mm")),
])
pocket5 = body.newObject("PartDesign::Pocket", "Pocket004")
pocket5.Profile = sketch10
pocket5.Length = 14.2
pocket5.Reversed = True

sketch11 = body.newObject("Sketcher::SketchObject", "Sketch010")
sketch11.AttachmentSupport = (doc.getObject("XY_Plane"), [""])
sketch11.MapMode = "FlatFace"
sketch11.AttachmentOffset = App.Placement(App.Vector(0, 0, 7.1), App.Rotation())
sketch11.addGeometry([
    Part.LineSegment(App.Vector(37.3, -16.4, 0), App.Vector(43.1, -16.4, 0)),
    Part.ArcOfCircle(Part.Circle(App.Vector(43.1, -19.4, 0), App.Vector(0, 0, 1), 3), math.radians(-90), math.radians(90)),
    Part.LineSegment(App.Vector(43.1, -22.4, 0), App.Vector(37.3, -22.4, 0)),
    Part.LineSegment(App.Vector(37.3, -22.4, 0), App.Vector(37.3, -16.4, 0)),
    Part.Circle(App.Vector(43.1, -19.4, 0), App.Vector(0, 0, 1), 1.5),
], False)
sketch11.addConstraint([
    Sketcher.Constraint("Tangent", 0, 2, 1, 2),
    Sketcher.Constraint("Tangent", 1, 1, 2, 1),
    Sketcher.Constraint("Coincident", 2, 2, 3, 1),
    Sketcher.Constraint("Coincident", 3, 2, 0, 1),
    Sketcher.Constraint("Horizontal", 0),
    Sketcher.Constraint("Horizontal", 2),
    Sketcher.Constraint("Vertical", 3),
    Sketcher.Constraint("Coincident", 4, 3, 1, 3),
    Sketcher.Constraint("Radius", 1, Q("3 mm")),
    Sketcher.Constraint("DistanceX", 0, 1, 0, 2, Q("5.8 mm")),
    Sketcher.Constraint("Diameter", 4, Q("3.035364 mm")),
    Sketcher.Constraint("DistanceY", 1, 3, -1, 1, Q("19.362369 mm")),
    Sketcher.Constraint("DistanceX", -1, 1, 1, 3, Q("43.053086 mm")),
])
pocket6 = body.newObject("PartDesign::Pocket", "Pocket005")
pocket6.Profile = sketch11
pocket6.Length = 0.7
pocket6.Reversed = True

sketch12 = body.newObject("Sketcher::SketchObject", "Sketch011")
sketch12.AttachmentSupport = (doc.getObject("XY_Plane"), [""])
sketch12.MapMode = "FlatFace"
sketch12.AttachmentOffset = App.Placement(App.Vector(0, 0, 7.1), App.Rotation())
sketch12.addGeometry([
    Part.Circle(App.Vector(56.5, -1.3, 0), App.Vector(0, 0, 1), 1.5),
    Part.Circle(App.Vector(3.5, -1.3, 0), App.Vector(0, 0, 1), 1.5),
    Part.Circle(App.Vector(56.5, -34.3, 0), App.Vector(0, 0, 1), 1.5),
    Part.Circle(App.Vector(3.5, -34.3, 0), App.Vector(0, 0, 1), 1.5),
], False)
sketch12.addConstraint([
    Sketcher.Constraint("Equal", 0, 1),
    Sketcher.Constraint("Equal", 1, 2),
    Sketcher.Constraint("Equal", 2, 3),
    Sketcher.Constraint("Horizontal", 2, 3, 3, 3),
    Sketcher.Constraint("Diameter", 0, Q("3.000005 mm")),
    Sketcher.Constraint("DistanceY", 2, 3, -1, 1, Q("34.2724 mm")),
    Sketcher.Constraint("DistanceX", 1, 3, 0, 3, Q("53.000102 mm")),
    Sketcher.Constraint("DistanceX", -1, 1, 2, 3, Q("56.500112 mm")),
    Sketcher.Constraint("DistanceX", 1, 3, 2, 3, Q("53.000089 mm")),
    Sketcher.Constraint("DistanceY", 0, 3, -1, 1, Q("1.272344 mm")),
    Sketcher.Constraint("DistanceY", 1, 3, -1, 1, Q("1.272364 mm")),
    Sketcher.Constraint("DistanceX", -1, 1, 3, 3, Q("3.500008 mm")),
])
pocket7 = body.newObject("PartDesign::Pocket", "Pocket006")
pocket7.Profile = sketch12
pocket7.Length = 1.7
pocket7.Reversed = True

sketch13 = body.newObject("Sketcher::SketchObject", "Sketch012")
sketch13.AttachmentSupport = (doc.getObject("XY_Plane"), [""])
sketch13.MapMode = "FlatFace"
sketch13.AttachmentOffset = App.Placement(App.Vector(0, 0, 8.8), App.Rotation())
sketch13.addGeometry([
    Part.Circle(App.Vector(3.5, -1.3, 0), App.Vector(0, 0, 1), 2.6),
    Part.Circle(App.Vector(56.5, -1.3, 0), App.Vector(0, 0, 1), 2.6),
    Part.Circle(App.Vector(56.5, -34.3, 0), App.Vector(0, 0, 1), 2.6),
    Part.Circle(App.Vector(3.5, -34.3, 0), App.Vector(0, 0, 1), 2.6),
], False)
sketch13.addConstraint([
    Sketcher.Constraint("Equal", 0, 1),
    Sketcher.Constraint("Equal", 1, 2),
    Sketcher.Constraint("Equal", 2, 3),
    Sketcher.Constraint("Horizontal", 0, 3, 1, 3),
    Sketcher.Constraint("Horizontal", 2, 3, 3, 3),
    Sketcher.Constraint("Vertical", 1, 3, 2, 3),
    Sketcher.Constraint("Vertical", 0, 3, 3, 3),
    Sketcher.Constraint("Diameter", 0, Q("5.2 mm")),
    Sketcher.Constraint("DistanceX", -1, 1, 0, 3, Q("3.500023 mm")),
    Sketcher.Constraint("DistanceY", 0, 3, -1, 1, Q("1.272364 mm")),
    Sketcher.Constraint("DistanceX", -1, 1, 1, 3, Q("56.500097 mm")),
    Sketcher.Constraint("DistanceY", 2, 3, -1, 1, Q("34.272367 mm")),
])
pocket8 = body.newObject("PartDesign::Pocket", "Pocket007")
pocket8.Profile = sketch13
pocket8.Length = 2.5

sketch14 = body.newObject("Sketcher::SketchObject", "Sketch013")
sketch14.AttachmentSupport = (doc.getObject("XY_Plane"), [""])
sketch14.MapMode = "FlatFace"
sketch14.AttachmentOffset = App.Placement(App.Vector(0, 0, 7.1), App.Rotation())
sketch14.addGeometry([
    Part.LineSegment(App.Vector(5.7, -13.8, 0), App.Vector(5.7, -21.8, 0)),
    Part.LineSegment(App.Vector(5.7, -21.8, 0), App.Vector(4.1, -21.8, 0)),
    Part.LineSegment(App.Vector(4.1, -21.8, 0), App.Vector(4.1, -13.8, 0)),
    Part.LineSegment(App.Vector(4.1, -13.8, 0), App.Vector(5.7, -13.8, 0)),
], False)
sketch14.addConstraint([
    Sketcher.Constraint("Coincident", 0, 2, 1, 1),
    Sketcher.Constraint("Coincident", 1, 2, 2, 1),
    Sketcher.Constraint("Coincident", 2, 2, 3, 1),
    Sketcher.Constraint("Coincident", 3, 2, 0, 1),
    Sketcher.Constraint("Vertical", 0),
    Sketcher.Constraint("Horizontal", 1),
    Sketcher.Constraint("Vertical", 2),
    Sketcher.Constraint("Horizontal", 3),
    Sketcher.Constraint("DistanceY", 0, 2, 0, 1, Q("8 mm")),
    Sketcher.Constraint("DistanceX", 1, 2, 1, 1, Q("1.6 mm")),
    Sketcher.Constraint("DistanceX", -1, 1, 0, 2, Q("5.700041 mm")),
    Sketcher.Constraint("DistanceY", 0, 2, -1, 1, Q("21.772366 mm")),
])
pocket9 = body.newObject("PartDesign::Pocket", "Pocket008")
pocket9.Profile = sketch14
pocket9.Length = 1.5
pocket9.Reversed = True

doc.recompute()
